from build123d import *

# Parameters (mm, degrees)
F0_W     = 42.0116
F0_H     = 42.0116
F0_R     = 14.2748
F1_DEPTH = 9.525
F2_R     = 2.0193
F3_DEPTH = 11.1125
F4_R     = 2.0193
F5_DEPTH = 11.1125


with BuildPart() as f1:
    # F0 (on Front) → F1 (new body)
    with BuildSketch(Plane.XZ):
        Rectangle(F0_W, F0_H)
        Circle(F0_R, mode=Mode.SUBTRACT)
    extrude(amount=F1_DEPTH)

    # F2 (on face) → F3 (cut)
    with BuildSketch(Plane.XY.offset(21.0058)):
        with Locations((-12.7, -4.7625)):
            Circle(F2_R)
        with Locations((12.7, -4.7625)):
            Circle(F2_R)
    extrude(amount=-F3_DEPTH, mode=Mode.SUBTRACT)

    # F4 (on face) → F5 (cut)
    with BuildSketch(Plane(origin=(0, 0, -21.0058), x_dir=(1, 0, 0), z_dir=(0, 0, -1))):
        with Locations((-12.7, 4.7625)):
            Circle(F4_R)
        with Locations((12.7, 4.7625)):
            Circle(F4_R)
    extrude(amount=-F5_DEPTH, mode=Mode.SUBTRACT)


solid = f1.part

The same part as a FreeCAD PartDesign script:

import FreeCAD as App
import Part
import Sketcher
from FreeCAD import Vector
Q = App.Units.Quantity

doc = App.newDocument("Part")
body = doc.addObject("PartDesign::Body", "Body")

# Sketch on XZ plane
sketch1 = body.newObject("Sketcher::SketchObject", "Sketch")
sketch1.AttachmentSupport = (doc.getObject("XZ_Plane"), [""])
sketch1.MapMode = "FlatFace"
sketch1.addGeometry(Part.LineSegment(Vector(-21, 21, 0), Vector(-21, -21, 0)), False)
sketch1.addGeometry(Part.LineSegment(Vector(-21, -21, 0), Vector(21, -21, 0)), False)
sketch1.addGeometry(Part.LineSegment(Vector(21, -21, 0), Vector(21, 21, 0)), False)
sketch1.addGeometry(Part.LineSegment(Vector(21, 21, 0), Vector(-21, 21, 0)), False)
sketch1.addGeometry(Part.Circle(Vector(0, 0, 0), Vector(0, 0, 1), 14), False)
sketch1.addConstraint(Sketcher.Constraint("Coincident", 0, 2, 1, 1))
sketch1.addConstraint(Sketcher.Constraint("Coincident", 1, 2, 2, 1))
sketch1.addConstraint(Sketcher.Constraint("Coincident", 2, 2, 3, 1))
sketch1.addConstraint(Sketcher.Constraint("Coincident", 3, 2, 0, 1))
sketch1.addConstraint(Sketcher.Constraint("Vertical", 0))
sketch1.addConstraint(Sketcher.Constraint("Horizontal", 1))
sketch1.addConstraint(Sketcher.Constraint("Vertical", 2))
sketch1.addConstraint(Sketcher.Constraint("Horizontal", 3))
sketch1.addConstraint(Sketcher.Constraint("Coincident", 4, 3, -1, 1))
sketch1.addConstraint(Sketcher.Constraint("Symmetric", 0, 2, 2, 2, -1, 1))
sketch1.addConstraint(Sketcher.Constraint("Equal", 3, 0))
sketch1.addConstraint(Sketcher.Constraint("Diameter", 4, Q("1.124 in")))
sketch1.addConstraint(Sketcher.Constraint("DistanceX", 1, 1, 1, 2, Q("1.654 in")))
pad1 = body.newObject("PartDesign::Pad", "Pad")
pad1.Profile = sketch1
pad1.Length = Q("0.375 in")

# Sketch on XY plane
sketch2 = body.newObject("Sketcher::SketchObject", "Sketch001")
sketch2.AttachmentSupport = (doc.getObject("XY_Plane"), [""])
sketch2.MapMode = "FlatFace"
sketch2.AttachmentOffset = App.Placement(Vector(0, 0, 0.827 * 25.4), App.Rotation())
sketch2.addGeometry(Part.Circle(Vector(-12.7, -4.8, 0), Vector(0, 0, 1), 2), False)
sketch2.addGeometry(Part.Circle(Vector(12.7, -4.8, 0), Vector(0, 0, 1), 2), False)
sketch2.addConstraint(Sketcher.Constraint("Equal", 0, 1))
sketch2.addConstraint(Sketcher.Constraint("Symmetric", 0, 3, 1, 3, -2))
sketch2.addConstraint(Sketcher.Constraint("Diameter", 0, Q("0.159 in")))
sketch2.addConstraint(Sketcher.Constraint("DistanceX", 0, 3, 1, 3, Q("1 in")))
sketch2.addConstraint(Sketcher.Constraint("DistanceY", 0, 3, -1, 1, Q("0.1875 in")))
pocket1 = body.newObject("PartDesign::Pocket", "Pocket")
pocket1.Profile = sketch2
pocket1.Length = Q("0.4375 in")

# Sketch on XY plane
sketch3 = body.newObject("Sketcher::SketchObject", "Sketch002")
sketch3.AttachmentSupport = (doc.getObject("XY_Plane"), [""])
sketch3.MapMode = "FlatFace"
sketch3.AttachmentOffset = App.Placement(Vector(0, 0, -0.827 * 25.4), App.Rotation())
sketch3.addGeometry(Part.Circle(Vector(-12.7, -4.8, 0), Vector(0, 0, 1), 2), False)
sketch3.addGeometry(Part.Circle(Vector(12.7, -4.8, 0), Vector(0, 0, 1), 2), False)
sketch3.addConstraint(Sketcher.Constraint("Equal", 0, 1))
sketch3.addConstraint(Sketcher.Constraint("Symmetric", 0, 3, 1, 3, -2))
sketch3.addConstraint(Sketcher.Constraint("Diameter", 0, Q("0.159 in")))
sketch3.addConstraint(Sketcher.Constraint("DistanceX", 0, 3, 1, 3, Q("1 in")))
sketch3.addConstraint(Sketcher.Constraint("DistanceY", 0, 3, -1, 1, Q("0.1875 in")))
pocket2 = body.newObject("PartDesign::Pocket", "Pocket001")
pocket2.Profile = sketch3
pocket2.Length = Q("0.4375 in")
pocket2.Reversed = True

doc.recompute()
